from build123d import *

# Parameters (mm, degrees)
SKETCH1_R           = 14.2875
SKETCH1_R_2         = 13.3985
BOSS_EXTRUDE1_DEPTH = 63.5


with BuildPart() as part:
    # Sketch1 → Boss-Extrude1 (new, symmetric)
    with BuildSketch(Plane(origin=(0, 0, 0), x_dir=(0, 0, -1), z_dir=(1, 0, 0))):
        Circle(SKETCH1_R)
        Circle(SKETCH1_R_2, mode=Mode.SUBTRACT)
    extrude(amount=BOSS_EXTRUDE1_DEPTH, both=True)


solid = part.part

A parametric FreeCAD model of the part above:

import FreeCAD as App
import Part
import Sketcher
Q = App.Units.Quantity

doc = App.newDocument("Part")
body = doc.addObject("PartDesign::Body", "Body")

sketch1 = body.newObject("Sketcher::SketchObject", "Sketch")
sketch1.AttachmentSupport = (doc.getObject("YZ_Plane"), [""])
sketch1.MapMode = "FlatFace"
sketch1.addGeometry([
    Part.Circle(App.Vector(0, 0, 0), App.Vector(0, 0, 1), 14),
    Part.Circle(App.Vector(0, 0, 0), App.Vector(0, 0, 1), 13),
], False)
sketch1.addConstraint([
    Sketcher.Constraint("Coincident", 0, 3, -1, 1),
    Sketcher.Constraint("Coincident", 1, 3, -1, 1),
    Sketcher.Constraint("Diameter", 0, Q("1.125 in")),
    Sketcher.Constraint("Diameter", 1, Q("1.055 in")),
])
pad1 = body.newObject("PartDesign::Pad", "Pad")
pad1.Profile = sketch1
pad1.Length = Q("5 in")
pad1.Midplane = True

doc.recompute()
